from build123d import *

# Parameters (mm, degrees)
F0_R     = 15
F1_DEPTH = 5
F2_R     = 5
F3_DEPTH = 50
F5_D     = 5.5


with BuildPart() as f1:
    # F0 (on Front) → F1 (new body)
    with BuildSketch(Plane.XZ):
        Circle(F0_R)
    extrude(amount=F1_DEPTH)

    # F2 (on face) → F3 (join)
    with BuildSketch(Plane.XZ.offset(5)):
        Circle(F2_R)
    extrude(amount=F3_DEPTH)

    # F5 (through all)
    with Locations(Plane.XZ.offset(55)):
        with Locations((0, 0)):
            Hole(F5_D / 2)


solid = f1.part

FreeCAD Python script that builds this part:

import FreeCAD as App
import Part
import Sketcher

V = App.Vector
Q = App.Units.Quantity

doc = App.newDocument("Part")
body = doc.addObject("PartDesign::Body", "Body")

# Sketch on XZ plane
sketch1 = doc.addObject("Sketcher::SketchObject", "Sketch")
body.addObject(sketch1)
sketch1.AttachmentSupport = (doc.XZ_Plane, [""])
sketch1.MapMode = "FlatFace"
sketch1.addGeometry(Part.Circle(V(0, 0, 0), V(0, 0, 1), 15), False)
sketch1.addConstraint(Sketcher.Constraint("Coincident", 0, 3, -1, 1))
sketch1.addConstraint(Sketcher.Constraint("Diameter", 0, Q("30 mm")))
pad1 = doc.addObject("PartDesign::Pad", "Pad")
body.addObject(pad1)
pad1.Profile = sketch1
pad1.Length = 5

# Sketch on XZ plane
sketch2 = doc.addObject("Sketcher::SketchObject", "Sketch001")
body.addObject(sketch2)
sketch2.AttachmentSupport = (doc.XZ_Plane, [""])
sketch2.MapMode = "FlatFace"
sketch2.AttachmentOffset = App.Placement(V(0, 0, 5), App.Rotation())
sketch2.addGeometry(Part.Circle(V(0, 0, 0), V(0, 0, 1), 5), False)
sketch2.addConstraint(Sketcher.Constraint("Coincident", 0, 3, -1, 1))
sketch2.addConstraint(Sketcher.Constraint("Diameter", 0, Q("10 mm")))
pad2 = doc.addObject("PartDesign::Pad", "Pad001")
body.addObject(pad2)
pad2.Profile = sketch2
pad2.Length = 50

# Sketch on XZ plane
sketch3 = doc.addObject("Sketcher::SketchObject", "Sketch002")
body.addObject(sketch3)
sketch3.AttachmentSupport = (doc.XZ_Plane, [""])
sketch3.MapMode = "FlatFace"
sketch3.AttachmentOffset = App.Placement(V(0, 0, 55), App.Rotation())
sketch3.addGeometry(Part.Circle(V(0, 0, 0), V(0, 0, 1), 2.8), False)
sketch3.addConstraint(Sketcher.Constraint("Coincident", 0, 3, -1, 1))
sketch3.addConstraint(Sketcher.Constraint("Diameter", 0, Q("5.5 mm")))
doc.recompute()
hole = doc.addObject("PartDesign::Hole", "Hole")
body.addObject(hole)
hole.Profile = sketch3
hole.ThreadType = "None"
hole.Diameter = 5.5
hole.DepthType = "ThroughAll"

doc.recompute()
